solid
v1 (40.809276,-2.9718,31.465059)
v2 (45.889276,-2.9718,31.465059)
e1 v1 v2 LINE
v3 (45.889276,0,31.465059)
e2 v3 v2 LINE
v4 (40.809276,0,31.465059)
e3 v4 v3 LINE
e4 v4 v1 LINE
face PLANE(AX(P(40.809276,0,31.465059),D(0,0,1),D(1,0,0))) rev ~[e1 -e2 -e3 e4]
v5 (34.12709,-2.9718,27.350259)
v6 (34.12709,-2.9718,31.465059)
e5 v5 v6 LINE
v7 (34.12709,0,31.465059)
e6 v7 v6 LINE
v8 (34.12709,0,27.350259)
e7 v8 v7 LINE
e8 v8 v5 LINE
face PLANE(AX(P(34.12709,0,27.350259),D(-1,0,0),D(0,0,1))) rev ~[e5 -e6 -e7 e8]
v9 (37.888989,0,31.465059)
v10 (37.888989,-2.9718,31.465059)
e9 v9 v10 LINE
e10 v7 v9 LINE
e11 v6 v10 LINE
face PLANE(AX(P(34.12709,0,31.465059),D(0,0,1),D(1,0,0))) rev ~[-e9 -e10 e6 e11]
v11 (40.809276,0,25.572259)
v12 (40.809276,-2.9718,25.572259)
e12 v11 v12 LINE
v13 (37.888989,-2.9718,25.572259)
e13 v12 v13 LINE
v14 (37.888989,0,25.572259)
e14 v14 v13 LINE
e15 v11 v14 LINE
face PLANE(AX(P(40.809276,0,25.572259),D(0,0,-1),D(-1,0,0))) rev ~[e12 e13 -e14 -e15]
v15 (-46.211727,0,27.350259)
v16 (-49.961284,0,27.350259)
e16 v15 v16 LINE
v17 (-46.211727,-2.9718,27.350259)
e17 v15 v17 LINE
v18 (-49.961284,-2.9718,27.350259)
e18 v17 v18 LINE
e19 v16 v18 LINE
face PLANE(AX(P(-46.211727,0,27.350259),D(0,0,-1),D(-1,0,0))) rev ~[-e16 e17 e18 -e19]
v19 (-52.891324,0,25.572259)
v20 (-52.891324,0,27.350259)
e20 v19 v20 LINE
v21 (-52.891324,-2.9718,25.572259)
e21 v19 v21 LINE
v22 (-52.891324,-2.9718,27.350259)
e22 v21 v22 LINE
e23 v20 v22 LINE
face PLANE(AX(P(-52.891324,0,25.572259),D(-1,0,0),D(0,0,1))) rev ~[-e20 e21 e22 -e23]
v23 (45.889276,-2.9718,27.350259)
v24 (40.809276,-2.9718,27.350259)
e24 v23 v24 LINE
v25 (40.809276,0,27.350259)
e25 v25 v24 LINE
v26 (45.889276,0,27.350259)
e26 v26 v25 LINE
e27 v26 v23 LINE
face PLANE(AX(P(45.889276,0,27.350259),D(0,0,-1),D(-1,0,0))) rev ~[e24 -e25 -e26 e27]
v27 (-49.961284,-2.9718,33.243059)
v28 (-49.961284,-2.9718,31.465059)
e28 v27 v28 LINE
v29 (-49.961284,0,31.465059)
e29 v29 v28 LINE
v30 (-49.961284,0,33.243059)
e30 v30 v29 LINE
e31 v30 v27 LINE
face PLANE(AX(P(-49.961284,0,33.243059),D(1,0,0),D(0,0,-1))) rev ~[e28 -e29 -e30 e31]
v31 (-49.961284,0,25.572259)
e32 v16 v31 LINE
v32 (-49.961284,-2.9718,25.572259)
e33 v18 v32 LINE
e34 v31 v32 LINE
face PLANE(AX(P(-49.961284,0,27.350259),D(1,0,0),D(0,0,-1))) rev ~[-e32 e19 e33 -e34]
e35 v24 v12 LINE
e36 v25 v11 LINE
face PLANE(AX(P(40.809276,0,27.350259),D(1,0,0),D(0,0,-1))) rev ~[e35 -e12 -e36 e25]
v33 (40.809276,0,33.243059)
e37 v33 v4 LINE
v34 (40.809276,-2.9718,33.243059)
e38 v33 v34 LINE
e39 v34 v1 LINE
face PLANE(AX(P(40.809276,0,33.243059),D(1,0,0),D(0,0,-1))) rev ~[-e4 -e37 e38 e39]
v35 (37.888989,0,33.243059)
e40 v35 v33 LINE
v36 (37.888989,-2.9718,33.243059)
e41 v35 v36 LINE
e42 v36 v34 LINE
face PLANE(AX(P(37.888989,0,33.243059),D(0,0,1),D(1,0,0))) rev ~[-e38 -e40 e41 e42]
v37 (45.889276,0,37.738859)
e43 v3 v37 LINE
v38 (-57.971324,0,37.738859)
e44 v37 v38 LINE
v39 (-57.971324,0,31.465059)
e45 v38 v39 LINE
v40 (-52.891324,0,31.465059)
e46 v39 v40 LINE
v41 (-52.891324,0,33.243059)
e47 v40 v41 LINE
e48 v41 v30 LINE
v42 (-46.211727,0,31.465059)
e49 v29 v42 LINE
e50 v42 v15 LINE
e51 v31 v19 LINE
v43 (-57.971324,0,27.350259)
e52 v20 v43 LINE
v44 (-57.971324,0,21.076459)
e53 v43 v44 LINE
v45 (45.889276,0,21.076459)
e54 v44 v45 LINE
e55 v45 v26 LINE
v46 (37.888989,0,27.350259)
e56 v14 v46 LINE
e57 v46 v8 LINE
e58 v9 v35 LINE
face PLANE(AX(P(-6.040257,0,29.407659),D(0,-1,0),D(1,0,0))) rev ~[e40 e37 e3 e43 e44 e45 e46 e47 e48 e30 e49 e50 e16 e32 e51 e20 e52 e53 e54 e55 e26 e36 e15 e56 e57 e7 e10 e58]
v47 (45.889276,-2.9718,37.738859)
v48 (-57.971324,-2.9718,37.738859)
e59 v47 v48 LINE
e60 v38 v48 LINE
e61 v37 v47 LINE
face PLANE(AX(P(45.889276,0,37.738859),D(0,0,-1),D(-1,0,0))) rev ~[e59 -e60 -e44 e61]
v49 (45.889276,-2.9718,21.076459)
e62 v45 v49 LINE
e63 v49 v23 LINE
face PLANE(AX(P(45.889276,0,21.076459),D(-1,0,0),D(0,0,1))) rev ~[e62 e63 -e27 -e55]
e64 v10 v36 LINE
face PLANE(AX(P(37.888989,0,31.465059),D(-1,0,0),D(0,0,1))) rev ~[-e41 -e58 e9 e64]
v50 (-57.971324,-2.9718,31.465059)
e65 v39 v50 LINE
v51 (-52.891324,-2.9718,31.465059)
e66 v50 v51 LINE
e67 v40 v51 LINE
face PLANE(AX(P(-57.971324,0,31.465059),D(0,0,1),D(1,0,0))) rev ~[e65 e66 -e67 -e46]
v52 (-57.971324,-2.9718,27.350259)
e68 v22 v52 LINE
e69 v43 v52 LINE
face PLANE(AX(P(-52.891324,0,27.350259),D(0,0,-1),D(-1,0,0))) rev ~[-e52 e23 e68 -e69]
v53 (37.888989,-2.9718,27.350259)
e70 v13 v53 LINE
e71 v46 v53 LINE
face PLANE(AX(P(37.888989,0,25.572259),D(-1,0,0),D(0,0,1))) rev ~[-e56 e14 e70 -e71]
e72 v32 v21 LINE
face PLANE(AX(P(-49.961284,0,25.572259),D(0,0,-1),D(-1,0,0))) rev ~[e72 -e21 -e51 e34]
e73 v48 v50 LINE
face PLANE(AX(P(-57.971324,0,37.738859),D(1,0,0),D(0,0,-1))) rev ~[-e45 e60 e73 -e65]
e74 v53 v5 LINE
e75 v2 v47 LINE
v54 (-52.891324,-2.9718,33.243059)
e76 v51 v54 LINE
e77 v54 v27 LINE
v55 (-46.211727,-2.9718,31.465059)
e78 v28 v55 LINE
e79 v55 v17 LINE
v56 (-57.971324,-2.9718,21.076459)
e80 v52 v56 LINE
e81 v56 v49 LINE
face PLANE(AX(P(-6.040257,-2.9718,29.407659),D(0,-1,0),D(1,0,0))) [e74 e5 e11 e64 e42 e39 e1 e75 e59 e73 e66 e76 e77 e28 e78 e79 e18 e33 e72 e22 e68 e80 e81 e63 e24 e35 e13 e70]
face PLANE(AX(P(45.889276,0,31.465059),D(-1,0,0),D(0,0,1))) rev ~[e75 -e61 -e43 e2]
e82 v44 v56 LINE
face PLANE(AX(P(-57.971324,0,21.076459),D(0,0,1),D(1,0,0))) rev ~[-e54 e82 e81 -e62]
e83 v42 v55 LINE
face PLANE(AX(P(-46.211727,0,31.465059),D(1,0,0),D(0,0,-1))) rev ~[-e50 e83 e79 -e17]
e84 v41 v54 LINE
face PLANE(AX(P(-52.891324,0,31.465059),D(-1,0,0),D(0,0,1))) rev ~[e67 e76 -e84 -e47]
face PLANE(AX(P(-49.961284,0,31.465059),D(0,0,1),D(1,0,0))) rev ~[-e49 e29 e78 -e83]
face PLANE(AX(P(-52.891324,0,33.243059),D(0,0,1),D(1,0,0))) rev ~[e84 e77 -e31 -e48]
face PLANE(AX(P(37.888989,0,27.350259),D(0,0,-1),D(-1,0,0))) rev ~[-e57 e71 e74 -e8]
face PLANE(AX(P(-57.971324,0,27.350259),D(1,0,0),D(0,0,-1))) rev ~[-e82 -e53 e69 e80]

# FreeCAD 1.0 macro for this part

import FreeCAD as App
import Part
import Sketcher
Q = App.Units.Quantity

doc = App.newDocument("Part")
body = doc.addObject("PartDesign::Body", "Body")

sketch1 = doc.addObject("Sketcher::SketchObject", "Sketch")
body.addObject(sketch1)
sketch1.AttachmentSupport = (doc.XZ_Plane, [""])
sketch1.MapMode = "FlatFace"
sketch1.addGeometry([
    Part.LineSegment(App.Vector(45.889276, 37.738859, 0), App.Vector(-57.971324, 37.738859, 0)),
    Part.LineSegment(App.Vector(-57.971324, 37.738859, 0), App.Vector(-57.971324, 31.465059, 0)),
    Part.LineSegment(App.Vector(-57.971324, 31.465059, 0), App.Vector(-52.891324, 31.465059, 0)),
    Part.LineSegment(App.Vector(-52.891324, 31.465059, 0), App.Vector(-52.891324, 33.243059, 0)),
    Part.LineSegment(App.Vector(-52.891324, 33.243059, 0), App.Vector(-49.961284, 33.243059, 0)),
    Part.LineSegment(App.Vector(-49.961284, 33.243059, 0), App.Vector(-49.961284, 31.465059, 0)),
    Part.LineSegment(App.Vector(-49.961284, 31.465059, 0), App.Vector(-46.211727, 31.465059, 0)),
    Part.LineSegment(App.Vector(-46.211727, 31.465059, 0), App.Vector(-46.211727, 27.350259, 0)),
    Part.LineSegment(App.Vector(-46.211727, 27.350259, 0), App.Vector(-49.961284, 27.350259, 0)),
    Part.LineSegment(App.Vector(-49.961284, 27.350259, 0), App.Vector(-49.961284, 25.572259, 0)),
    Part.LineSegment(App.Vector(-49.961284, 25.572259, 0), App.Vector(-52.891324, 25.572259, 0)),
    Part.LineSegment(App.Vector(-52.891324, 25.572259, 0), App.Vector(-52.891324, 27.350259, 0)),
    Part.LineSegment(App.Vector(-52.891324, 27.350259, 0), App.Vector(-57.971324, 27.350259, 0)),
    Part.LineSegment(App.Vector(-57.971324, 27.350259, 0), App.Vector(-57.971324, 21.076459, 0)),
    Part.LineSegment(App.Vector(-57.971324, 21.076459, 0), App.Vector(45.889276, 21.076459, 0)),
    Part.LineSegment(App.Vector(45.889276, 21.076459, 0), App.Vector(45.889276, 27.350259, 0)),
    Part.LineSegment(App.Vector(45.889276, 27.350259, 0), App.Vector(40.809276, 27.350259, 0)),
    Part.LineSegment(App.Vector(40.809276, 27.350259, 0), App.Vector(40.809276, 25.572259, 0)),
    Part.LineSegment(App.Vector(40.809276, 25.572259, 0), App.Vector(37.888989, 25.572259, 0)),
    Part.LineSegment(App.Vector(37.888989, 25.572259, 0), App.Vector(37.888989, 27.350259, 0)),
    Part.LineSegment(App.Vector(37.888989, 27.350259, 0), App.Vector(34.12709, 27.350259, 0)),
    Part.LineSegment(App.Vector(34.12709, 27.350259, 0), App.Vector(34.12709, 31.465059, 0)),
    Part.LineSegment(App.Vector(34.12709, 31.465059, 0), App.Vector(37.888989, 31.465059, 0)),
    Part.LineSegment(App.Vector(37.888989, 31.465059, 0), App.Vector(37.888989, 33.243059, 0)),
    Part.LineSegment(App.Vector(37.888989, 33.243059, 0), App.Vector(40.809276, 33.243059, 0)),
    Part.LineSegment(App.Vector(40.809276, 33.243059, 0), App.Vector(40.809276, 31.465059, 0)),
    Part.LineSegment(App.Vector(40.809276, 31.465059, 0), App.Vector(45.889276, 31.465059, 0)),
    Part.LineSegment(App.Vector(45.889276, 31.465059, 0), App.Vector(45.889276, 37.738859, 0)),
], False)
sketch1.addConstraint([
    Sketcher.Constraint("Coincident", 0, 2, 1, 1),
    Sketcher.Constraint("Coincident", 1, 2, 2, 1),
    Sketcher.Constraint("Coincident", 2, 2, 3, 1),
    Sketcher.Constraint("Coincident", 3, 2, 4, 1),
    Sketcher.Constraint("Coincident", 4, 2, 5, 1),
    Sketcher.Constraint("Coincident", 5, 2, 6, 1),
    Sketcher.Constraint("Coincident", 6, 2, 7, 1),
    Sketcher.Constraint("Coincident", 7, 2, 8, 1),
    Sketcher.Constraint("Coincident", 8, 2, 9, 1),
    Sketcher.Constraint("Coincident", 9, 2, 10, 1),
    Sketcher.Constraint("Coincident", 10, 2, 11, 1),
    Sketcher.Constraint("Coincident", 11, 2, 12, 1),
    Sketcher.Constraint("Coincident", 12, 2, 13, 1),
    Sketcher.Constraint("Coincident", 13, 2, 14, 1),
    Sketcher.Constraint("Coincident", 14, 2, 15, 1),
    Sketcher.Constraint("Coincident", 15, 2, 16, 1),
    Sketcher.Constraint("Coincident", 16, 2, 17, 1),
    Sketcher.Constraint("Coincident", 17, 2, 18, 1),
    Sketcher.Constraint("Coincident", 18, 2, 19, 1),
    Sketcher.Constraint("Coincident", 19, 2, 20, 1),
    Sketcher.Constraint("Coincident", 20, 2, 21, 1),
    Sketcher.Constraint("Coincident", 21, 2, 22, 1),
    Sketcher.Constraint("Coincident", 22, 2, 23, 1),
    Sketcher.Constraint("Coincident", 23, 2, 24, 1),
    Sketcher.Constraint("Coincident", 24, 2, 25, 1),
    Sketcher.Constraint("Coincident", 25, 2, 26, 1),
    Sketcher.Constraint("Coincident", 26, 2, 27, 1),
    Sketcher.Constraint("Coincident", 27, 2, 0, 1),
    Sketcher.Constraint("Horizontal", 0),
    Sketcher.Constraint("Vertical", 1),
    Sketcher.Constraint("Horizontal", 2),
    Sketcher.Constraint("Vertical", 3),
    Sketcher.Constraint("Horizontal", 4),
    Sketcher.Constraint("Vertical", 5),
    Sketcher.Constraint("Horizontal", 6),
    Sketcher.Constraint("Vertical", 7),
    Sketcher.Constraint("Horizontal", 8),
    Sketcher.Constraint("Vertical", 9),
    Sketcher.Constraint("Horizontal", 10),
    Sketcher.Constraint("Vertical", 11),
    Sketcher.Constraint("Horizontal", 12),
    Sketcher.Constraint("Vertical", 13),
    Sketcher.Constraint("Horizontal", 14),
    Sketcher.Constraint("Vertical", 15),
    Sketcher.Constraint("Horizontal", 16),
    Sketcher.Constraint("Vertical", 17),
    Sketcher.Constraint("Horizontal", 18),
    Sketcher.Constraint("Vertical", 19),
    Sketcher.Constraint("Horizontal", 20),
    Sketcher.Constraint("Vertical", 21),
    Sketcher.Constraint("Horizontal", 22),
    Sketcher.Constraint("Vertical", 23),
    Sketcher.Constraint("Horizontal", 24),
    Sketcher.Constraint("Vertical", 25),
    Sketcher.Constraint("Horizontal", 26),
    Sketcher.Constraint("Vertical", 27),
    Sketcher.Constraint("Horizontal", 2, 2, 5, 2),
    Sketcher.Constraint("Horizontal", 8, 2, 11, 2),
    Sketcher.Constraint("Horizontal", 12, 2, 15, 2),
    Sketcher.Constraint("Horizontal", 10, 2, 17, 2),
    Sketcher.Constraint("Horizontal", 16, 2, 19, 2),
    Sketcher.Constraint("Horizontal", 6, 2, 21, 2),
    Sketcher.Constraint("Horizontal", 4, 2, 23, 2),
    Sketcher.Constraint("Horizontal", 22, 2, 25, 2),
    Sketcher.Constraint("Vertical", 5, 2, 8, 2),
    Sketcher.Constraint("Vertical", 3, 2, 10, 2),
    Sketcher.Constraint("Vertical", 1, 2, 12, 2),
    Sketcher.Constraint("Vertical", 19, 2, 22, 2),
    Sketcher.Constraint("Vertical", 17, 2, 24, 2),
    Sketcher.Constraint("Vertical", 15, 2, 26, 2),
    Sketcher.Constraint("Equal", 12, 16),
    Sketcher.Constraint("Equal", 5, 9),
    Sketcher.Constraint("Equal", 1, 13),
    Sketcher.Constraint("DistanceX", 2, 1, 2, 2, Q("0.2 in")),
    Sketcher.Constraint("DistanceY", 3, 1, 3, 2, Q("0.07 in")),
    Sketcher.Constraint("DistanceX", 0, 2, 0, 1, Q("4.089 in")),
    Sketcher.Constraint("DistanceY", 1, 2, 1, 1, Q("0.247 in")),
    Sketcher.Constraint("DistanceY", 7, 2, 7, 1, Q("0.162 in")),
    Sketcher.Constraint("DistanceX", 20, 2, 20, 1, Q("3.761899 mm")),
    Sketcher.Constraint("DistanceX", 4, 1, 4, 2, Q("2.93004 mm")),
    Sketcher.Constraint("DistanceX", 6, 1, 6, 2, Q("3.749557 mm")),
    Sketcher.Constraint("DistanceX", 18, 2, 18, 1, Q("2.920287 mm")),
    Sketcher.Constraint("DistanceY", -1, 1, 0, 2, Q("37.738859 mm")),
    Sketcher.Constraint("DistanceX", -1, 1, 18, 2, Q("37.888989 mm")),
])
pad1 = doc.addObject("PartDesign::Pad", "Pad")
body.addObject(pad1)
pad1.Profile = sketch1
pad1.Length = Q("0.117 in")

doc.recompute()
